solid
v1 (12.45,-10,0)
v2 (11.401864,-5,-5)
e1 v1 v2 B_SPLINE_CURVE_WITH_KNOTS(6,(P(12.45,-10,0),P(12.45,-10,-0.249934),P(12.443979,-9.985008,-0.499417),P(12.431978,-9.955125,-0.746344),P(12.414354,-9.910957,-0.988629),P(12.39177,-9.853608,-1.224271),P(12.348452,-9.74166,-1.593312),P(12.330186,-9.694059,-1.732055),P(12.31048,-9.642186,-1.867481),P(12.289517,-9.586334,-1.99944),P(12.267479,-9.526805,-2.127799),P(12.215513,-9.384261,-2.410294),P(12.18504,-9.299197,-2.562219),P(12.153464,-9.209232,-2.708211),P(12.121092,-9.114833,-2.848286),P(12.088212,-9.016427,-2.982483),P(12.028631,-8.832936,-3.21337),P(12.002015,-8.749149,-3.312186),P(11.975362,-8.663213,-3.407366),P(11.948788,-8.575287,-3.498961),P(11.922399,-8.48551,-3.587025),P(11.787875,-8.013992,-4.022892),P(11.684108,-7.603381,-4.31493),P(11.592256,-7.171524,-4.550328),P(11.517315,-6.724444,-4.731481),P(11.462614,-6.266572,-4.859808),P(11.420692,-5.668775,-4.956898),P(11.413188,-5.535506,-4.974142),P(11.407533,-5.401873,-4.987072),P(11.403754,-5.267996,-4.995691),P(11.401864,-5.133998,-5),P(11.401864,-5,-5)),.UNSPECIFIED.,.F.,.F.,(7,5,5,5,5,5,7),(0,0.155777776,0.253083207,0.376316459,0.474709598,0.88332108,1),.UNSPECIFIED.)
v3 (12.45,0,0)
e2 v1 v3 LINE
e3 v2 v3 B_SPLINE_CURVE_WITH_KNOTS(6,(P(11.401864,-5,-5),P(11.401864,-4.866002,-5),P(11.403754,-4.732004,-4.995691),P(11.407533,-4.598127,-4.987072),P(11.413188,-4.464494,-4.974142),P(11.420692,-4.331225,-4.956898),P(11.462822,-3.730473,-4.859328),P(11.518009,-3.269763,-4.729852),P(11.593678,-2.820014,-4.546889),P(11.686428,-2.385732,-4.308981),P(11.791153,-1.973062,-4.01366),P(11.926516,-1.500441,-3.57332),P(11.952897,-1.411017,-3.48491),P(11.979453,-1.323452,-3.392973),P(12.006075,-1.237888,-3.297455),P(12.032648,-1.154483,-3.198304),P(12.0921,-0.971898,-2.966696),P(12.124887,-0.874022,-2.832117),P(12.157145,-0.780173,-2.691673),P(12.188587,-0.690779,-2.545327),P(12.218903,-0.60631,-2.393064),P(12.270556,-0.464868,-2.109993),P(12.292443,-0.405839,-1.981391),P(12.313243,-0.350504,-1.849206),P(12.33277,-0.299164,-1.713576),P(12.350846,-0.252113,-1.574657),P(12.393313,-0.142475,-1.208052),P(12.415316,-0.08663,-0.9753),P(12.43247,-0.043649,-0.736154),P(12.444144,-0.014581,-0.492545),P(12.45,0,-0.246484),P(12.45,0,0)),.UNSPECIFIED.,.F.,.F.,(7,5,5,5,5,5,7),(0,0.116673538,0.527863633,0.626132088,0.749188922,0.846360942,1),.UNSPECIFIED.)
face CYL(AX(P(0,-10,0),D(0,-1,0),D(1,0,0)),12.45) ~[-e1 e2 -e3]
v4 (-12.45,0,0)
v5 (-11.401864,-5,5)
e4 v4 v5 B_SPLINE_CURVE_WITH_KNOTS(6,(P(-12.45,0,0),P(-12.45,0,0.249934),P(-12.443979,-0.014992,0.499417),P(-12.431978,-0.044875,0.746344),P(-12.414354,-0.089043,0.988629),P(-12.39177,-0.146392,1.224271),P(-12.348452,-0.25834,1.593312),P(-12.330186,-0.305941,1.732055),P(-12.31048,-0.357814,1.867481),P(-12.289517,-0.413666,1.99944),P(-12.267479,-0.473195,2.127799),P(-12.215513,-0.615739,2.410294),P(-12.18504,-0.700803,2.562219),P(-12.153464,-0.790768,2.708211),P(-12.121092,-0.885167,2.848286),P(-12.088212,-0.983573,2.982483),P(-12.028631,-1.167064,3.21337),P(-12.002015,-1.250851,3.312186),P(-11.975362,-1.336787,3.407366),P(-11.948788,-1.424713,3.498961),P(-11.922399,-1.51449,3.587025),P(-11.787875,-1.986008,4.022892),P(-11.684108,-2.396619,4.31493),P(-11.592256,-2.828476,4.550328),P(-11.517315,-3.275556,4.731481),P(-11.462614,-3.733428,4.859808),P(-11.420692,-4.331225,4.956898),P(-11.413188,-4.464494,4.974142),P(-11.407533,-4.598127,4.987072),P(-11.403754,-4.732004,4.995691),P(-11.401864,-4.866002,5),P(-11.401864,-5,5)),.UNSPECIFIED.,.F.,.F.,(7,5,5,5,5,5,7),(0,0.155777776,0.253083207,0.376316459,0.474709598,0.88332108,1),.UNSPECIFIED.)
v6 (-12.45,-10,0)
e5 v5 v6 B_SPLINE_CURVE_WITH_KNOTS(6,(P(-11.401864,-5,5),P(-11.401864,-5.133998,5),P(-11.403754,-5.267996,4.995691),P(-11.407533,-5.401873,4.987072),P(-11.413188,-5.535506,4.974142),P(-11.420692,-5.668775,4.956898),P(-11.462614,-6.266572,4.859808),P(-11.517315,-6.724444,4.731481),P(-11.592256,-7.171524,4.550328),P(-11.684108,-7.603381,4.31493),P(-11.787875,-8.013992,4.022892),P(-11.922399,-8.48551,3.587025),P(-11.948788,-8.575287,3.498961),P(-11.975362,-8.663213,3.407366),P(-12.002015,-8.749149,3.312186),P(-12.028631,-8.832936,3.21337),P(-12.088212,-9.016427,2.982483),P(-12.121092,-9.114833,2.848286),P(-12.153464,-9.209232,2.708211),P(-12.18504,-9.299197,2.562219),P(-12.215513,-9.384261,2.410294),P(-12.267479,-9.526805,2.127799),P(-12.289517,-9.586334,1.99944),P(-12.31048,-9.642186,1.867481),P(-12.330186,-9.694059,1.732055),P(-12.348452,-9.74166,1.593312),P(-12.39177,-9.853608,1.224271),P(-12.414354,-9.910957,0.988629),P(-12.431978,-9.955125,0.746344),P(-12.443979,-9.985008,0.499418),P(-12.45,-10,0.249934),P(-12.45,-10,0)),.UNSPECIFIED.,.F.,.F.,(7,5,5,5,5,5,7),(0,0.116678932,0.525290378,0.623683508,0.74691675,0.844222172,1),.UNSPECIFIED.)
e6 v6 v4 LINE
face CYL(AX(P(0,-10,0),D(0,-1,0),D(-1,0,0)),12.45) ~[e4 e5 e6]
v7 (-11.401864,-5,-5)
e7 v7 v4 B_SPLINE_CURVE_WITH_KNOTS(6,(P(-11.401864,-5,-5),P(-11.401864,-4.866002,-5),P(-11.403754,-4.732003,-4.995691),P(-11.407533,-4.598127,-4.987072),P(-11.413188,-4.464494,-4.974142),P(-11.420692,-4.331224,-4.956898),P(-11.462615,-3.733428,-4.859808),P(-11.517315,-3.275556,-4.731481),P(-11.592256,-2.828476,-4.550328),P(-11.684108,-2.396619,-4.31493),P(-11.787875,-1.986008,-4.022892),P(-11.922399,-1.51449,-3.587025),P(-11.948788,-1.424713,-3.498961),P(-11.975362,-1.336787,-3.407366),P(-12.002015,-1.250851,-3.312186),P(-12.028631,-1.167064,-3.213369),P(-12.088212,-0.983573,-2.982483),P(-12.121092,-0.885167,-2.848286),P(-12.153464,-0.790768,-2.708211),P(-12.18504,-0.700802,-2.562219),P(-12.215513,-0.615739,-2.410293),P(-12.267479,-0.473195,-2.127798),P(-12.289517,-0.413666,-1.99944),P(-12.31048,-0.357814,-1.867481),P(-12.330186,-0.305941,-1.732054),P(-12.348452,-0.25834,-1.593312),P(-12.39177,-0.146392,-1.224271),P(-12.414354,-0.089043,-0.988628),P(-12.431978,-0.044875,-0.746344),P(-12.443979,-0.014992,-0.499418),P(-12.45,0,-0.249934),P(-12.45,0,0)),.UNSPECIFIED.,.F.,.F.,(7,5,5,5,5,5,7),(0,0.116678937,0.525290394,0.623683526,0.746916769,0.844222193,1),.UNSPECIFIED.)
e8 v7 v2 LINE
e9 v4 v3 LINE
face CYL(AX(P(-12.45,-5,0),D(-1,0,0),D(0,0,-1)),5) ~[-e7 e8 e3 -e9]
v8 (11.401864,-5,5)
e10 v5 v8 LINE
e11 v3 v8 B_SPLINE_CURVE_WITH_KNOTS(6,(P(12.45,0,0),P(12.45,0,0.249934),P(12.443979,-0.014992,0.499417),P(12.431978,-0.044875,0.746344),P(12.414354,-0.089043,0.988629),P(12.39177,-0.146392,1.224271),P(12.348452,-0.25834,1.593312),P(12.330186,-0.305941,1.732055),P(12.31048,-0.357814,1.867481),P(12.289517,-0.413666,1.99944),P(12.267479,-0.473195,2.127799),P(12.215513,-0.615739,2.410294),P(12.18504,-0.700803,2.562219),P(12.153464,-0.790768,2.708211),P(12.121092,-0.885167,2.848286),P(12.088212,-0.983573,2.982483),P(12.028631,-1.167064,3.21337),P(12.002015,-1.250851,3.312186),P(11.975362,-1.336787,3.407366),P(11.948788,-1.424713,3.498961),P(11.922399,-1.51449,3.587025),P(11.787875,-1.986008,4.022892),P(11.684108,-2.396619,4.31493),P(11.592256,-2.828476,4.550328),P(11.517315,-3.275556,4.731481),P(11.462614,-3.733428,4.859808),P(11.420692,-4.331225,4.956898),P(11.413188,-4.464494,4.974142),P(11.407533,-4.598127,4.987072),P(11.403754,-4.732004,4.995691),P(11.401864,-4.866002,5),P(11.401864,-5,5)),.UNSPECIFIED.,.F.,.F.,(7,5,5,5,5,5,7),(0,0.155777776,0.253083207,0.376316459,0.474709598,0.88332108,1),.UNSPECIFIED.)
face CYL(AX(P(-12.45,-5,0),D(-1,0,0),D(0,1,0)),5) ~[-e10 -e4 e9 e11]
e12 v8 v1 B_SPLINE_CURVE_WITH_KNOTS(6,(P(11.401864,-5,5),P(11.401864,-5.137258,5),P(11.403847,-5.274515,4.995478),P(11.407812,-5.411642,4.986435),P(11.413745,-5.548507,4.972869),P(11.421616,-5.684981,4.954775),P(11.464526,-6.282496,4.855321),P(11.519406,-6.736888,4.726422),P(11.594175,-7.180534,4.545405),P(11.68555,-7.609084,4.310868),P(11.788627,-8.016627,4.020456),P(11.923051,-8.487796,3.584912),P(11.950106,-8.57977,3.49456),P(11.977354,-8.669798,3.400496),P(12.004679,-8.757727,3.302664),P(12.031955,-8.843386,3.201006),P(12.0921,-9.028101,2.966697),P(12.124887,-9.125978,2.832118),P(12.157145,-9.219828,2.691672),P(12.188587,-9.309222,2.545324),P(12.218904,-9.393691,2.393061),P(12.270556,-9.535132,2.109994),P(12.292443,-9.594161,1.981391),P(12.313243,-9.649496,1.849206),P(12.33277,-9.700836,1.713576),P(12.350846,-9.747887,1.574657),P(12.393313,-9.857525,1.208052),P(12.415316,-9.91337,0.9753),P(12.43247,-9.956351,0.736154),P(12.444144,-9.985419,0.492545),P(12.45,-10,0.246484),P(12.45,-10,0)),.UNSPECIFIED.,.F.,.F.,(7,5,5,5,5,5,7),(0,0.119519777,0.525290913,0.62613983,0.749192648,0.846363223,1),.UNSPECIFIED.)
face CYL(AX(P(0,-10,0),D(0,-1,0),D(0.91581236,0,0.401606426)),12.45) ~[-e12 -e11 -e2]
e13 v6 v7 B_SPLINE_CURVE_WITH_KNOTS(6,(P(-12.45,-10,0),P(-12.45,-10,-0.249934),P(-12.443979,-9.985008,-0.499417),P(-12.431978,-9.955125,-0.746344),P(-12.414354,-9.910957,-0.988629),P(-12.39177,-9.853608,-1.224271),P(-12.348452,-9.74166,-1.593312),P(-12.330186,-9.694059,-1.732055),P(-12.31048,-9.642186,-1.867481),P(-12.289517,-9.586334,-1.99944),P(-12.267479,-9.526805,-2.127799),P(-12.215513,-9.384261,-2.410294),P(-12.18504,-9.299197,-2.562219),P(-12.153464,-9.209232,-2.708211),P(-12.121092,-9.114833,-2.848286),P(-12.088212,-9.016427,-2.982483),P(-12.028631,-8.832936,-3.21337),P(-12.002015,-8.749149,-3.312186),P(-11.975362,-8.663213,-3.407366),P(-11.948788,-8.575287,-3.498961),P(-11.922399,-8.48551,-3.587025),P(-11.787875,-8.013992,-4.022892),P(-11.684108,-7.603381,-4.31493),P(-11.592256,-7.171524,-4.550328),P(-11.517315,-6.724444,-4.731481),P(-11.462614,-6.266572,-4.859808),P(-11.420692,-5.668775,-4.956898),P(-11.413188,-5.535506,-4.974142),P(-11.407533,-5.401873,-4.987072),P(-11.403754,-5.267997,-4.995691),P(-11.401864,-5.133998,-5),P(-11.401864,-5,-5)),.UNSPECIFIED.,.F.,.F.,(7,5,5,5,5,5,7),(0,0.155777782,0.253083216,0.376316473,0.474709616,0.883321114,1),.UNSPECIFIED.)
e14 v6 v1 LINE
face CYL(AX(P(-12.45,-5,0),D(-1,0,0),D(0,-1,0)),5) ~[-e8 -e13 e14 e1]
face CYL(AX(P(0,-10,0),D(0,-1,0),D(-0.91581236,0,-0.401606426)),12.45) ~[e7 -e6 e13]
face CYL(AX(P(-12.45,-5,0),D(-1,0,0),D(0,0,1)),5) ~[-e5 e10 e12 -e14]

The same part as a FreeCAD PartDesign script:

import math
import FreeCAD as App
import Part
import Sketcher
Q = App.Units.Quantity


def add_polygon(sketch, points):
    """Adds a closed chain of lines whose ends are joined by coincident constraints."""
    first, n = sketch.GeometryCount, len(points)
    for a, b in zip(points, points[1:] + points[:1]):
        sketch.addGeometry(Part.LineSegment(App.Vector(*a, 0), App.Vector(*b, 0)), False)
    for i in range(n):
        sketch.addConstraint(Sketcher.Constraint("Coincident", first + i, 2, first + (i + 1) % n, 1))

doc = App.newDocument("Part")
body = doc.addObject("PartDesign::Body", "Body")

# Sketch on XZ plane
sketch1 = body.newObject("Sketcher::SketchObject", "Sketch")
sketch1.AttachmentSupport = (doc.getObject("XZ_Plane"), [""])
sketch1.MapMode = "FlatFace"
add_polygon(sketch1, [(-12.45, 5), (-12.45, -5), (12.45, -5), (12.45, 5)])  # lines 0-3
sketch1.addConstraint([
    Sketcher.Constraint("Vertical", 0),
    Sketcher.Constraint("Horizontal", 1),
    Sketcher.Constraint("Vertical", 2),
    Sketcher.Constraint("Horizontal", 3),
    Sketcher.Constraint("Symmetric", 0, 2, 2, 2, -1, 1),
    Sketcher.Constraint("DistanceY", 0, 2, 0, 1, Q("10 mm")),
    Sketcher.Constraint("DistanceX", 1, 1, 1, 2, Q("24.9 mm")),
])
pad1 = body.newObject("PartDesign::Pad", "Pad")
pad1.Profile = sketch1
pad1.Length = 10

# Sketch on YZ plane
sketch2 = body.newObject("Sketcher::SketchObject", "Sketch001")
sketch2.AttachmentSupport = (doc.getObject("YZ_Plane"), [""])
sketch2.MapMode = "FlatFace"
sketch2.AttachmentOffset = App.Placement(App.Vector(0, 0, -12.45), App.Rotation())
sketch2.addGeometry([
    Part.ArcOfCircle(Part.Circle(App.Vector(-5, 0, 0), App.Vector(0, 0, 1), 5), math.radians(0), math.radians(90)),  # 0
    Part.LineSegment(App.Vector(-5, 5, 0), App.Vector(0, 5, 0)),  # 1
    Part.LineSegment(App.Vector(0, 5, 0), App.Vector(0, 0, 0)),  # 2
    Part.ArcOfCircle(Part.Circle(App.Vector(-5, 0, 0), App.Vector(0, 0, 1), 5), math.radians(90), math.radians(180)),  # 3
    Part.LineSegment(App.Vector(-10, 0, 0), App.Vector(-10, 5, 0)),  # 4
    Part.LineSegment(App.Vector(-10, 5, 0), App.Vector(-5, 5, 0)),  # 5
    Part.LineSegment(App.Vector(0, -5, 0), App.Vector(-5, -5, 0)),  # 6
    Part.ArcOfCircle(Part.Circle(App.Vector(-5, 0, 0), App.Vector(0, 0, 1), 5), math.radians(-90), math.radians(0)),  # 7
    Part.LineSegment(App.Vector(0, 0, 0), App.Vector(0, -5, 0)),  # 8
    Part.LineSegment(App.Vector(-10, -5, 0), App.Vector(-10, 0, 0)),  # 9
    Part.ArcOfCircle(Part.Circle(App.Vector(-5, 0, 0), App.Vector(0, 0, 1), 5), math.radians(180), math.radians(270)),  # 10
    Part.LineSegment(App.Vector(-5, -5, 0), App.Vector(-10, -5, 0)),  # 11
], False)
sketch2.addConstraint([
    Sketcher.Constraint("Tangent", 0, 2, 1, 1),
    Sketcher.Constraint("Coincident", 1, 2, 2, 1),
    Sketcher.Constraint("Tangent", 2, 2, 0, 1),
    Sketcher.Constraint("Tangent", 3, 2, 4, 1),
    Sketcher.Constraint("Coincident", 4, 2, 5, 1),
    Sketcher.Constraint("Tangent", 5, 2, 3, 1),
    Sketcher.Constraint("Tangent", 6, 2, 7, 1),
    Sketcher.Constraint("Tangent", 7, 2, 8, 1),
    Sketcher.Constraint("Coincident", 8, 2, 6, 1),
    Sketcher.Constraint("Tangent", 9, 2, 10, 1),
    Sketcher.Constraint("Tangent", 10, 2, 11, 1),
    Sketcher.Constraint("Coincident", 11, 2, 9, 1),
    Sketcher.Constraint("Horizontal", 1),
    Sketcher.Constraint("Vertical", 2),
    Sketcher.Constraint("Vertical", 4),
    Sketcher.Constraint("Horizontal", 5),
    Sketcher.Constraint("Horizontal", 6),
    Sketcher.Constraint("Vertical", 8),
    Sketcher.Constraint("Vertical", 9),
    Sketcher.Constraint("Horizontal", 11),
    Sketcher.Constraint("Coincident", 2, 2, -1, 1),
    Sketcher.Constraint("Coincident", 7, 2, -1, 1),
    Sketcher.Constraint("Coincident", 3, 3, 0, 3),
    Sketcher.Constraint("Coincident", 10, 3, 0, 3),
    Sketcher.Constraint("Coincident", 10, 2, 6, 2),
    Sketcher.Constraint("Equal", 0, 3),
    Sketcher.Constraint("Radius", 0, Q("5 mm")),
])
pocket1 = body.newObject("PartDesign::Pocket", "Pocket")
pocket1.Profile = sketch2
pocket1.Type = "ThroughAll"
pocket1.Reversed = True

# Sketch on XZ plane
sketch3 = body.newObject("Sketcher::SketchObject", "Sketch002")
sketch3.AttachmentSupport = (doc.getObject("XZ_Plane"), [""])
sketch3.MapMode = "FlatFace"
sketch3.AttachmentOffset = App.Placement(App.Vector(0, 0, 10), App.Rotation())
sketch3.addGeometry([
    Part.ArcOfCircle(Part.Circle(App.Vector(0, 0, 0), App.Vector(0, 0, 1), 12.45), math.radians(156.321358), math.radians(180)),  # 0
    Part.LineSegment(App.Vector(-11.401864, 5, 0), App.Vector(-12.45, 5, 0)),  # 1
    Part.LineSegment(App.Vector(-12.45, 5, 0), App.Vector(-12.45, 0, 0)),  # 2
    Part.LineSegment(App.Vector(-12.45, -5, 0), App.Vector(-11.401864, -5, 0)),  # 3
    Part.ArcOfCircle(Part.Circle(App.Vector(0, 0, 0), App.Vector(0, 0, 1), 12.45), math.radians(180), math.radians(203.678642)),  # 4
    Part.LineSegment(App.Vector(-12.45, 0, 0), App.Vector(-12.45, -5, 0)),  # 5
    Part.ArcOfCircle(Part.Circle(App.Vector(0, 0, 0), App.Vector(0, 0, 1), 12.45), math.radians(0), math.radians(23.678642)),  # 6
    Part.LineSegment(App.Vector(12.45, 0, 0), App.Vector(12.45, 5, 0)),  # 7
    Part.LineSegment(App.Vector(12.45, 5, 0), App.Vector(11.401864, 5, 0)),  # 8
    Part.LineSegment(App.Vector(12.45, -5, 0), App.Vector(12.45, 0, 0)),  # 9
    Part.ArcOfCircle(Part.Circle(App.Vector(0, 0, 0), App.Vector(0, 0, 1), 12.45), math.radians(-23.678642), math.radians(0)),  # 10
    Part.LineSegment(App.Vector(11.401864, -5, 0), App.Vector(12.45, -5, 0)),  # 11
], False)
sketch3.addConstraint([
    Sketcher.Constraint("Coincident", 0, 1, 1, 1),
    Sketcher.Constraint("Coincident", 1, 2, 2, 1),
    Sketcher.Constraint("Tangent", 2, 2, 0, 2),
    Sketcher.Constraint("Coincident", 3, 2, 4, 2),
    Sketcher.Constraint("Tangent", 4, 1, 5, 1),
    Sketcher.Constraint("Coincident", 5, 2, 3, 1),
    Sketcher.Constraint("Tangent", 6, 1, 7, 1),
    Sketcher.Constraint("Coincident", 7, 2, 8, 1),
    Sketcher.Constraint("Coincident", 8, 2, 6, 2),
    Sketcher.Constraint("Tangent", 9, 2, 10, 2),
    Sketcher.Constraint("Coincident", 10, 1, 11, 1),
    Sketcher.Constraint("Coincident", 11, 2, 9, 1),
    Sketcher.Constraint("Horizontal", 1),
    Sketcher.Constraint("Vertical", 2),
    Sketcher.Constraint("Horizontal", 3),
    Sketcher.Constraint("Vertical", 5),
    Sketcher.Constraint("Vertical", 7),
    Sketcher.Constraint("Horizontal", 8),
    Sketcher.Constraint("Vertical", 9),
    Sketcher.Constraint("Horizontal", 11),
    Sketcher.Constraint("Coincident", 0, 3, -1, 1),
    Sketcher.Constraint("Coincident", 4, 3, -1, 1),
    Sketcher.Constraint("Coincident", 6, 3, -1, 1),
    Sketcher.Constraint("Coincident", 10, 3, -1, 1),
    Sketcher.Constraint("Equal", 0, 4),
    Sketcher.Constraint("Equal", 4, 6),
    Sketcher.Constraint("Equal", 6, 10),
    Sketcher.Constraint("Horizontal", 1, 2, 7, 2),
    Sketcher.Constraint("Horizontal", 5, 2, 10, 1),
    Sketcher.Constraint("Vertical", 0, 1, 3, 2),
    Sketcher.Constraint("DistanceY", 2, 2, 2, 1, Q("5 mm")),
    Sketcher.Constraint("Radius", 0, Q("12.45 mm")),
])
pocket2 = body.newObject("PartDesign::Pocket", "Pocket001")
pocket2.Profile = sketch3
pocket2.Type = "ThroughAll"

doc.recompute()
